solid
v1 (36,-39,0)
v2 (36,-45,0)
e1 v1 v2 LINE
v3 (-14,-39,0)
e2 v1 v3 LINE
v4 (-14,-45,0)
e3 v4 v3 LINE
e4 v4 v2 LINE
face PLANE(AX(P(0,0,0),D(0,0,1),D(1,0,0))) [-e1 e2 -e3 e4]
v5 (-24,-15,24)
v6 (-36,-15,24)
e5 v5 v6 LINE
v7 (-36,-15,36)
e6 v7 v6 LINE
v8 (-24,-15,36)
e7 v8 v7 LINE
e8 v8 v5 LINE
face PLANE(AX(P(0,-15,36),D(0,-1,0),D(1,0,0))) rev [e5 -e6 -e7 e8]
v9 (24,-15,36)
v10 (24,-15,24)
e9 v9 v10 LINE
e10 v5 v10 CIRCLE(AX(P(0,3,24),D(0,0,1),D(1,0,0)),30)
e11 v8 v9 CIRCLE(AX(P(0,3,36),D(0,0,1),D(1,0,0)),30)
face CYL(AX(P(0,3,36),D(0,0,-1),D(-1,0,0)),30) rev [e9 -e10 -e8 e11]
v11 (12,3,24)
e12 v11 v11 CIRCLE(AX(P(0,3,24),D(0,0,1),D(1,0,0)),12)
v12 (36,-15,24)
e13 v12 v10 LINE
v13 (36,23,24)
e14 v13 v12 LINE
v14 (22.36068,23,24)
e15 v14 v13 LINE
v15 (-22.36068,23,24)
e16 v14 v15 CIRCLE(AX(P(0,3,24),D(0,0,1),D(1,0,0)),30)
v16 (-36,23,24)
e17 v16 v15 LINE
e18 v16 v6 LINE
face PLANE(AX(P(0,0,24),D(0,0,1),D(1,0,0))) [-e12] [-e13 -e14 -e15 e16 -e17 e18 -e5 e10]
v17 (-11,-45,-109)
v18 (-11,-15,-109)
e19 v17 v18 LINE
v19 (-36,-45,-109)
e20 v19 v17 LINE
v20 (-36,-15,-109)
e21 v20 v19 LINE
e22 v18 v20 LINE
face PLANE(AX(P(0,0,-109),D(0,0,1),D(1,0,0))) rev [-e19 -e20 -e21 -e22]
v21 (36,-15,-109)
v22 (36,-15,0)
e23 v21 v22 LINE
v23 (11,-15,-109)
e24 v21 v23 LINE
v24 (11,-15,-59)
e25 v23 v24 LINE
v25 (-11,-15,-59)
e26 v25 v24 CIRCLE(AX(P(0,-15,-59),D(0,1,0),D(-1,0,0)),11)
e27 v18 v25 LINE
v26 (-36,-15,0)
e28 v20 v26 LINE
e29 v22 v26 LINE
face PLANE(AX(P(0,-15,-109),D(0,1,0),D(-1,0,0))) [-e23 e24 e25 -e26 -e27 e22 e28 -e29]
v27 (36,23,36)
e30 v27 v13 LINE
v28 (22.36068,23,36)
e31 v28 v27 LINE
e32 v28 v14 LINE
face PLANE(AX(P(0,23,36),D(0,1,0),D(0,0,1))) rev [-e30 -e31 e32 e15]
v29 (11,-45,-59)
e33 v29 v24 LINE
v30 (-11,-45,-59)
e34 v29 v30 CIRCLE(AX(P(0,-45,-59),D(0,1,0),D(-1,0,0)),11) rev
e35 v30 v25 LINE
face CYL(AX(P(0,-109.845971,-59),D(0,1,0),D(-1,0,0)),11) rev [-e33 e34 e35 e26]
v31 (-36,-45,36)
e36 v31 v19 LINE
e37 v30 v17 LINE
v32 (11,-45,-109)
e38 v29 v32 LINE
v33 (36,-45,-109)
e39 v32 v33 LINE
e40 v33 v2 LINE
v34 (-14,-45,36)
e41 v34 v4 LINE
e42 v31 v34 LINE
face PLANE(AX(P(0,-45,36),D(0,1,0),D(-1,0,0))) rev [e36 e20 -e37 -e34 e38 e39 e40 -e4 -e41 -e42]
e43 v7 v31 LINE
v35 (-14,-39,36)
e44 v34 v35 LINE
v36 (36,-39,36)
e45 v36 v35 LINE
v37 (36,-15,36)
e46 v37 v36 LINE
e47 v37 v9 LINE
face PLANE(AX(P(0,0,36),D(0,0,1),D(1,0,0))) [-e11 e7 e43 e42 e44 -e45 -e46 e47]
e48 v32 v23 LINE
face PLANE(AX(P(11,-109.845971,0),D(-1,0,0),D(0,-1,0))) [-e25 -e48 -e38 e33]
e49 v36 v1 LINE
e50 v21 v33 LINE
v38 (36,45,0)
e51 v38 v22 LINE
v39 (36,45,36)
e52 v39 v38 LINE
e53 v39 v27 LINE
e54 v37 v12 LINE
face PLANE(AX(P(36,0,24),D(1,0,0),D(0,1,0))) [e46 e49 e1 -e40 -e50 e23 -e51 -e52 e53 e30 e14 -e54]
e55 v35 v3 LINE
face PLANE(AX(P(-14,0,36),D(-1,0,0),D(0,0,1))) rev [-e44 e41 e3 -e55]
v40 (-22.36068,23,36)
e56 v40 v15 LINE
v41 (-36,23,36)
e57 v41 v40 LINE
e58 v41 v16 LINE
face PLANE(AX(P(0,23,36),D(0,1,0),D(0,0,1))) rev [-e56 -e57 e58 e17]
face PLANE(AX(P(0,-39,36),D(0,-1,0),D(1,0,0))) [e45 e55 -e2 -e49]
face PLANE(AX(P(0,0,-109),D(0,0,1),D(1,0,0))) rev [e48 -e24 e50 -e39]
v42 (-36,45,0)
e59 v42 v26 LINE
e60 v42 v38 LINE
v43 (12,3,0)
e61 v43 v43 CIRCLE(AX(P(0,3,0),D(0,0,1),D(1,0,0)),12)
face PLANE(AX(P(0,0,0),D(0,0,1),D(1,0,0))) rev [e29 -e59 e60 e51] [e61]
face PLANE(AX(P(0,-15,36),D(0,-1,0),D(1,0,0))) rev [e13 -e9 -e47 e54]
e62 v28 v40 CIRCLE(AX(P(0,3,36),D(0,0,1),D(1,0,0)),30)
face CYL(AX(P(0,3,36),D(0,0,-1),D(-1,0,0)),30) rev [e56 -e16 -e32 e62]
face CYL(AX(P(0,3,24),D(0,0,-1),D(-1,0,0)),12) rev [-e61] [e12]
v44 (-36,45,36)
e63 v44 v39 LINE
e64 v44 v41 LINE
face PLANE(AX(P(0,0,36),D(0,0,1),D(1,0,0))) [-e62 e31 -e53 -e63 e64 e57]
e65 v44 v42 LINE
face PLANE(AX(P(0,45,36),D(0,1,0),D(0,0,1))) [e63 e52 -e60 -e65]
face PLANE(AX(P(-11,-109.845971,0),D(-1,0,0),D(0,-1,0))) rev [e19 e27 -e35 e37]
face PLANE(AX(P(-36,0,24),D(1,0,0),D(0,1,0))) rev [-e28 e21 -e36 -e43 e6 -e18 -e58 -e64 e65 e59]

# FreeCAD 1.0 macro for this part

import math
import FreeCAD as App
import Part
import Sketcher

V = App.Vector


def add_polygon(sketch, points):
    """Adds a closed chain of lines whose ends are joined by coincident constraints."""
    first, n = sketch.GeometryCount, len(points)
    for a, b in zip(points, points[1:] + points[:1]):
        sketch.addGeometry(Part.LineSegment(App.Vector(*a, 0), App.Vector(*b, 0)), False)
    for i in range(n):
        sketch.addConstraint(Sketcher.Constraint("Coincident", first + i, 2, first + (i + 1) % n, 1))

doc = App.newDocument("Part")
body = doc.addObject("PartDesign::Body", "Body")

sketch1 = doc.addObject("Sketcher::SketchObject", "Sketch")
body.addObject(sketch1)
sketch1.AttachmentSupport = (doc.XY_Plane, [""])
sketch1.MapMode = "FlatFace"
sketch1.addGeometry([
    Part.ArcOfCircle(Part.Circle(V(0, 3, 0), V(0, 0, 1), 30), math.radians(42), math.radians(138)),
    Part.LineSegment(V(-22, 23, 0), V(-36, 23, 0)),
    Part.LineSegment(V(-36, 23, 0), V(-36, -15, 0)),
    Part.LineSegment(V(-36, -15, 0), V(-24, -15, 0)),
    Part.ArcOfCircle(Part.Circle(V(0, 3, 0), V(0, 0, 1), 30), math.radians(-143), math.radians(-37)),
    Part.LineSegment(V(24, -15, 0), V(36, -15, 0)),
    Part.LineSegment(V(36, -15, 0), V(36, 23, 0)),
    Part.LineSegment(V(36, 23, 0), V(22, 23, 0)),
    Part.Circle(V(0, 3, 0), V(0, 0, 1), 12),
], False)
sketch1.addConstraint([
    Sketcher.Constraint("Coincident", 0, 2, 1, 1),
    Sketcher.Constraint("Coincident", 1, 2, 2, 1),
    Sketcher.Constraint("Coincident", 2, 2, 3, 1),
    Sketcher.Constraint("Coincident", 3, 2, 4, 1),
    Sketcher.Constraint("Coincident", 4, 2, 5, 1),
    Sketcher.Constraint("Coincident", 5, 2, 6, 1),
    Sketcher.Constraint("Coincident", 6, 2, 7, 1),
    Sketcher.Constraint("Coincident", 7, 2, 0, 1),
    Sketcher.Constraint("Horizontal", 1),
    Sketcher.Constraint("Vertical", 2),
    Sketcher.Constraint("Horizontal", 3),
    Sketcher.Constraint("Horizontal", 5),
    Sketcher.Constraint("Vertical", 6),
    Sketcher.Constraint("Horizontal", 7),
    Sketcher.Constraint("Coincident", 4, 3, 0, 3),
    Sketcher.Constraint("Coincident", 8, 3, 0, 3),
    Sketcher.Constraint("Equal", 0, 4),
    Sketcher.Constraint("Symmetric", 3, 2, 4, 2, -2),
    Sketcher.Constraint("Symmetric", 1, 2, 6, 2, -2),
    Sketcher.Constraint("Diameter", 8, 24.0),
    Sketcher.Constraint("Radius", 0, 30.0),
    Sketcher.Constraint("DistanceX", 3, 1, 3, 2, 12.0),
    Sketcher.Constraint("DistanceY", 2, 2, 2, 1, 38.0),
    Sketcher.Constraint("DistanceY", -1, 1, 0, 3, 3.0),
    Sketcher.Constraint("DistanceY", -1, 1, 0, 2, 23.0),
])
pad1 = doc.addObject("PartDesign::Pad", "Pad")
body.addObject(pad1)
pad1.Profile = sketch1
pad1.Length = 24

sketch2 = doc.addObject("Sketcher::SketchObject", "Sketch001")
body.addObject(sketch2)
sketch2.AttachmentSupport = (doc.XY_Plane, [""])
sketch2.MapMode = "FlatFace"
sketch2.addGeometry([
    Part.LineSegment(V(36, 45, 0), V(-36, 45, 0)),
    Part.LineSegment(V(-36, 45, 0), V(-36, 23, 0)),
    Part.LineSegment(V(-36, 23, 0), V(-22, 23, 0)),
    Part.ArcOfCircle(Part.Circle(V(0, 3, 0), V(0, 0, 1), 30), math.radians(42), math.radians(138)),
    Part.LineSegment(V(22, 23, 0), V(36, 23, 0)),
    Part.LineSegment(V(36, 23, 0), V(36, 45, 0)),
    Part.LineSegment(V(-24, -15, 0), V(-36, -15, 0)),
    Part.LineSegment(V(-36, -15, 0), V(-36, -45, 0)),
    Part.LineSegment(V(-36, -45, 0), V(-14, -45, 0)),
    Part.LineSegment(V(-14, -45, 0), V(-14, -39, 0)),
    Part.LineSegment(V(-14, -39, 0), V(36, -39, 0)),
    Part.LineSegment(V(36, -39, 0), V(36, -15, 0)),
    Part.LineSegment(V(36, -15, 0), V(24, -15, 0)),
    Part.ArcOfCircle(Part.Circle(V(0, 3, 0), V(0, 0, 1), 30), math.radians(-143), math.radians(-37)),
], False)
sketch2.addConstraint([
    Sketcher.Constraint("Coincident", 0, 2, 1, 1),
    Sketcher.Constraint("Coincident", 1, 2, 2, 1),
    Sketcher.Constraint("Coincident", 2, 2, 3, 2),
    Sketcher.Constraint("Coincident", 3, 1, 4, 1),
    Sketcher.Constraint("Coincident", 4, 2, 5, 1),
    Sketcher.Constraint("Coincident", 5, 2, 0, 1),
    Sketcher.Constraint("Coincident", 6, 2, 7, 1),
    Sketcher.Constraint("Coincident", 7, 2, 8, 1),
    Sketcher.Constraint("Coincident", 8, 2, 9, 1),
    Sketcher.Constraint("Coincident", 9, 2, 10, 1),
    Sketcher.Constraint("Coincident", 10, 2, 11, 1),
    Sketcher.Constraint("Coincident", 11, 2, 12, 1),
    Sketcher.Constraint("Coincident", 12, 2, 13, 2),
    Sketcher.Constraint("Coincident", 13, 1, 6, 1),
    Sketcher.Constraint("Horizontal", 0),
    Sketcher.Constraint("Vertical", 1),
    Sketcher.Constraint("Horizontal", 2),
    Sketcher.Constraint("Horizontal", 4),
    Sketcher.Constraint("Vertical", 5),
    Sketcher.Constraint("Horizontal", 6),
    Sketcher.Constraint("Vertical", 7),
    Sketcher.Constraint("Horizontal", 8),
    Sketcher.Constraint("Vertical", 9),
    Sketcher.Constraint("Horizontal", 10),
    Sketcher.Constraint("Vertical", 11),
    Sketcher.Constraint("Horizontal", 12),
    Sketcher.Constraint("Coincident", 13, 3, 3, 3),
    Sketcher.Constraint("Equal", 3, 13),
    Sketcher.Constraint("Symmetric", 5, 2, 7, 2, -1, 1),
    Sketcher.Constraint("Symmetric", 2, 2, 3, 1, -2),
    Sketcher.Constraint("Symmetric", 6, 2, 11, 2, -2),
    Sketcher.Constraint("Vertical", 1, 2, 6, 2),
    Sketcher.Constraint("Equal", 8, 1),
    Sketcher.Constraint("Radius", 3, 30.0),
    Sketcher.Constraint("DistanceX", 0, 2, 0, 1, 72.0),
    Sketcher.Constraint("DistanceX", 6, 2, 6, 1, 12.0),
    Sketcher.Constraint("DistanceX", 8, 1, 8, 2, 22.0),
    Sketcher.Constraint("DistanceY", 7, 2, 7, 1, 30.0),
    Sketcher.Constraint("DistanceY", 9, 1, 9, 2, 6.0),
    Sketcher.Constraint("DistanceY", -1, 1, 3, 3, 3.0),
])
pad2 = doc.addObject("PartDesign::Pad", "Pad001")
body.addObject(pad2)
pad2.Profile = sketch2
pad2.Length = 36

sketch3 = doc.addObject("Sketcher::SketchObject", "Sketch002")
body.addObject(sketch3)
sketch3.AttachmentSupport = (doc.XY_Plane, [""])
sketch3.MapMode = "FlatFace"
add_polygon(sketch3, [(-36, -15), (-36, -45), (36, -45), (36, -15)])
sketch3.addConstraint([
    Sketcher.Constraint("Vertical", 0),
    Sketcher.Constraint("Horizontal", 1),
    Sketcher.Constraint("Vertical", 2),
    Sketcher.Constraint("Horizontal", 3),
    Sketcher.Constraint("DistanceX", 1, 1, 1, 2, 72.0),
    Sketcher.Constraint("DistanceY", 0, 2, 0, 1, 30.0),
    Sketcher.Constraint("DistanceX", 0, 2, -1, 1, 36.0),
    Sketcher.Constraint("DistanceY", 0, 2, -1, 1, 45.0),
])
pad3 = doc.addObject("PartDesign::Pad", "Pad002")
body.addObject(pad3)
pad3.Profile = sketch3
pad3.Length = 109
pad3.Reversed = True

sketch4 = doc.addObject("Sketcher::SketchObject", "Sketch003")
body.addObject(sketch4)
sketch4.AttachmentSupport = (doc.XY_Plane, [""])
sketch4.MapMode = "FlatFace"
add_polygon(sketch4, [(-14, -39), (-14, -45), (36, -45), (36, -39)])
sketch4.addConstraint([
    Sketcher.Constraint("Vertical", 0),
    Sketcher.Constraint("Horizontal", 1),
    Sketcher.Constraint("Vertical", 2),
    Sketcher.Constraint("Horizontal", 3),
    Sketcher.Constraint("DistanceX", 1, 1, 1, 2, 50.0),
    Sketcher.Constraint("DistanceY", 0, 2, 0, 1, 6.0),
    Sketcher.Constraint("DistanceX", 0, 2, -1, 1, 14.0),
    Sketcher.Constraint("DistanceY", 0, 2, -1, 1, 45.0),
])
pad4 = doc.addObject("PartDesign::Pad", "Pad003")
body.addObject(pad4)
pad4.Profile = sketch4
pad4.Length = 36
pad4.Reversed = True

sketch5 = doc.addObject("Sketcher::SketchObject", "Sketch004")
body.addObject(sketch5)
sketch5.AttachmentSupport = (doc.XZ_Plane, [""])
sketch5.MapMode = "FlatFace"
sketch5.AttachmentOffset = App.Placement(V(0, 0, 15), App.Rotation())
sketch5.addGeometry([
    Part.LineSegment(V(11, -109, 0), V(-11, -109, 0)),
    Part.LineSegment(V(-11, -109, 0), V(-11, -59, 0)),
    Part.ArcOfCircle(Part.Circle(V(0, -59, 0), V(0, 0, 1), 11), math.radians(0), math.radians(180)),
    Part.LineSegment(V(11, -59, 0), V(11, -109, 0)),
], False)
sketch5.addConstraint([
    Sketcher.Constraint("Coincident", 0, 2, 1, 1),
    Sketcher.Constraint("Tangent", 1, 2, 2, 2),
    Sketcher.Constraint("Tangent", 2, 1, 3, 1),
    Sketcher.Constraint("Coincident", 3, 2, 0, 1),
    Sketcher.Constraint("Horizontal", 0),
    Sketcher.Constraint("Vertical", 1),
    Sketcher.Constraint("Vertical", 3),
    Sketcher.Constraint("PointOnObject", 2, 3, -2),
    Sketcher.Constraint("Radius", 2, 11.0),
    Sketcher.Constraint("DistanceY", 1, 1, 1, 2, 50.0),
    Sketcher.Constraint("DistanceY", 2, 3, -1, 1, 59.0),
])
pocket1 = doc.addObject("PartDesign::Pocket", "Pocket")
body.addObject(pocket1)
pocket1.Profile = sketch5
pocket1.Length = 30
pocket1.Reversed = True

doc.recompute()
